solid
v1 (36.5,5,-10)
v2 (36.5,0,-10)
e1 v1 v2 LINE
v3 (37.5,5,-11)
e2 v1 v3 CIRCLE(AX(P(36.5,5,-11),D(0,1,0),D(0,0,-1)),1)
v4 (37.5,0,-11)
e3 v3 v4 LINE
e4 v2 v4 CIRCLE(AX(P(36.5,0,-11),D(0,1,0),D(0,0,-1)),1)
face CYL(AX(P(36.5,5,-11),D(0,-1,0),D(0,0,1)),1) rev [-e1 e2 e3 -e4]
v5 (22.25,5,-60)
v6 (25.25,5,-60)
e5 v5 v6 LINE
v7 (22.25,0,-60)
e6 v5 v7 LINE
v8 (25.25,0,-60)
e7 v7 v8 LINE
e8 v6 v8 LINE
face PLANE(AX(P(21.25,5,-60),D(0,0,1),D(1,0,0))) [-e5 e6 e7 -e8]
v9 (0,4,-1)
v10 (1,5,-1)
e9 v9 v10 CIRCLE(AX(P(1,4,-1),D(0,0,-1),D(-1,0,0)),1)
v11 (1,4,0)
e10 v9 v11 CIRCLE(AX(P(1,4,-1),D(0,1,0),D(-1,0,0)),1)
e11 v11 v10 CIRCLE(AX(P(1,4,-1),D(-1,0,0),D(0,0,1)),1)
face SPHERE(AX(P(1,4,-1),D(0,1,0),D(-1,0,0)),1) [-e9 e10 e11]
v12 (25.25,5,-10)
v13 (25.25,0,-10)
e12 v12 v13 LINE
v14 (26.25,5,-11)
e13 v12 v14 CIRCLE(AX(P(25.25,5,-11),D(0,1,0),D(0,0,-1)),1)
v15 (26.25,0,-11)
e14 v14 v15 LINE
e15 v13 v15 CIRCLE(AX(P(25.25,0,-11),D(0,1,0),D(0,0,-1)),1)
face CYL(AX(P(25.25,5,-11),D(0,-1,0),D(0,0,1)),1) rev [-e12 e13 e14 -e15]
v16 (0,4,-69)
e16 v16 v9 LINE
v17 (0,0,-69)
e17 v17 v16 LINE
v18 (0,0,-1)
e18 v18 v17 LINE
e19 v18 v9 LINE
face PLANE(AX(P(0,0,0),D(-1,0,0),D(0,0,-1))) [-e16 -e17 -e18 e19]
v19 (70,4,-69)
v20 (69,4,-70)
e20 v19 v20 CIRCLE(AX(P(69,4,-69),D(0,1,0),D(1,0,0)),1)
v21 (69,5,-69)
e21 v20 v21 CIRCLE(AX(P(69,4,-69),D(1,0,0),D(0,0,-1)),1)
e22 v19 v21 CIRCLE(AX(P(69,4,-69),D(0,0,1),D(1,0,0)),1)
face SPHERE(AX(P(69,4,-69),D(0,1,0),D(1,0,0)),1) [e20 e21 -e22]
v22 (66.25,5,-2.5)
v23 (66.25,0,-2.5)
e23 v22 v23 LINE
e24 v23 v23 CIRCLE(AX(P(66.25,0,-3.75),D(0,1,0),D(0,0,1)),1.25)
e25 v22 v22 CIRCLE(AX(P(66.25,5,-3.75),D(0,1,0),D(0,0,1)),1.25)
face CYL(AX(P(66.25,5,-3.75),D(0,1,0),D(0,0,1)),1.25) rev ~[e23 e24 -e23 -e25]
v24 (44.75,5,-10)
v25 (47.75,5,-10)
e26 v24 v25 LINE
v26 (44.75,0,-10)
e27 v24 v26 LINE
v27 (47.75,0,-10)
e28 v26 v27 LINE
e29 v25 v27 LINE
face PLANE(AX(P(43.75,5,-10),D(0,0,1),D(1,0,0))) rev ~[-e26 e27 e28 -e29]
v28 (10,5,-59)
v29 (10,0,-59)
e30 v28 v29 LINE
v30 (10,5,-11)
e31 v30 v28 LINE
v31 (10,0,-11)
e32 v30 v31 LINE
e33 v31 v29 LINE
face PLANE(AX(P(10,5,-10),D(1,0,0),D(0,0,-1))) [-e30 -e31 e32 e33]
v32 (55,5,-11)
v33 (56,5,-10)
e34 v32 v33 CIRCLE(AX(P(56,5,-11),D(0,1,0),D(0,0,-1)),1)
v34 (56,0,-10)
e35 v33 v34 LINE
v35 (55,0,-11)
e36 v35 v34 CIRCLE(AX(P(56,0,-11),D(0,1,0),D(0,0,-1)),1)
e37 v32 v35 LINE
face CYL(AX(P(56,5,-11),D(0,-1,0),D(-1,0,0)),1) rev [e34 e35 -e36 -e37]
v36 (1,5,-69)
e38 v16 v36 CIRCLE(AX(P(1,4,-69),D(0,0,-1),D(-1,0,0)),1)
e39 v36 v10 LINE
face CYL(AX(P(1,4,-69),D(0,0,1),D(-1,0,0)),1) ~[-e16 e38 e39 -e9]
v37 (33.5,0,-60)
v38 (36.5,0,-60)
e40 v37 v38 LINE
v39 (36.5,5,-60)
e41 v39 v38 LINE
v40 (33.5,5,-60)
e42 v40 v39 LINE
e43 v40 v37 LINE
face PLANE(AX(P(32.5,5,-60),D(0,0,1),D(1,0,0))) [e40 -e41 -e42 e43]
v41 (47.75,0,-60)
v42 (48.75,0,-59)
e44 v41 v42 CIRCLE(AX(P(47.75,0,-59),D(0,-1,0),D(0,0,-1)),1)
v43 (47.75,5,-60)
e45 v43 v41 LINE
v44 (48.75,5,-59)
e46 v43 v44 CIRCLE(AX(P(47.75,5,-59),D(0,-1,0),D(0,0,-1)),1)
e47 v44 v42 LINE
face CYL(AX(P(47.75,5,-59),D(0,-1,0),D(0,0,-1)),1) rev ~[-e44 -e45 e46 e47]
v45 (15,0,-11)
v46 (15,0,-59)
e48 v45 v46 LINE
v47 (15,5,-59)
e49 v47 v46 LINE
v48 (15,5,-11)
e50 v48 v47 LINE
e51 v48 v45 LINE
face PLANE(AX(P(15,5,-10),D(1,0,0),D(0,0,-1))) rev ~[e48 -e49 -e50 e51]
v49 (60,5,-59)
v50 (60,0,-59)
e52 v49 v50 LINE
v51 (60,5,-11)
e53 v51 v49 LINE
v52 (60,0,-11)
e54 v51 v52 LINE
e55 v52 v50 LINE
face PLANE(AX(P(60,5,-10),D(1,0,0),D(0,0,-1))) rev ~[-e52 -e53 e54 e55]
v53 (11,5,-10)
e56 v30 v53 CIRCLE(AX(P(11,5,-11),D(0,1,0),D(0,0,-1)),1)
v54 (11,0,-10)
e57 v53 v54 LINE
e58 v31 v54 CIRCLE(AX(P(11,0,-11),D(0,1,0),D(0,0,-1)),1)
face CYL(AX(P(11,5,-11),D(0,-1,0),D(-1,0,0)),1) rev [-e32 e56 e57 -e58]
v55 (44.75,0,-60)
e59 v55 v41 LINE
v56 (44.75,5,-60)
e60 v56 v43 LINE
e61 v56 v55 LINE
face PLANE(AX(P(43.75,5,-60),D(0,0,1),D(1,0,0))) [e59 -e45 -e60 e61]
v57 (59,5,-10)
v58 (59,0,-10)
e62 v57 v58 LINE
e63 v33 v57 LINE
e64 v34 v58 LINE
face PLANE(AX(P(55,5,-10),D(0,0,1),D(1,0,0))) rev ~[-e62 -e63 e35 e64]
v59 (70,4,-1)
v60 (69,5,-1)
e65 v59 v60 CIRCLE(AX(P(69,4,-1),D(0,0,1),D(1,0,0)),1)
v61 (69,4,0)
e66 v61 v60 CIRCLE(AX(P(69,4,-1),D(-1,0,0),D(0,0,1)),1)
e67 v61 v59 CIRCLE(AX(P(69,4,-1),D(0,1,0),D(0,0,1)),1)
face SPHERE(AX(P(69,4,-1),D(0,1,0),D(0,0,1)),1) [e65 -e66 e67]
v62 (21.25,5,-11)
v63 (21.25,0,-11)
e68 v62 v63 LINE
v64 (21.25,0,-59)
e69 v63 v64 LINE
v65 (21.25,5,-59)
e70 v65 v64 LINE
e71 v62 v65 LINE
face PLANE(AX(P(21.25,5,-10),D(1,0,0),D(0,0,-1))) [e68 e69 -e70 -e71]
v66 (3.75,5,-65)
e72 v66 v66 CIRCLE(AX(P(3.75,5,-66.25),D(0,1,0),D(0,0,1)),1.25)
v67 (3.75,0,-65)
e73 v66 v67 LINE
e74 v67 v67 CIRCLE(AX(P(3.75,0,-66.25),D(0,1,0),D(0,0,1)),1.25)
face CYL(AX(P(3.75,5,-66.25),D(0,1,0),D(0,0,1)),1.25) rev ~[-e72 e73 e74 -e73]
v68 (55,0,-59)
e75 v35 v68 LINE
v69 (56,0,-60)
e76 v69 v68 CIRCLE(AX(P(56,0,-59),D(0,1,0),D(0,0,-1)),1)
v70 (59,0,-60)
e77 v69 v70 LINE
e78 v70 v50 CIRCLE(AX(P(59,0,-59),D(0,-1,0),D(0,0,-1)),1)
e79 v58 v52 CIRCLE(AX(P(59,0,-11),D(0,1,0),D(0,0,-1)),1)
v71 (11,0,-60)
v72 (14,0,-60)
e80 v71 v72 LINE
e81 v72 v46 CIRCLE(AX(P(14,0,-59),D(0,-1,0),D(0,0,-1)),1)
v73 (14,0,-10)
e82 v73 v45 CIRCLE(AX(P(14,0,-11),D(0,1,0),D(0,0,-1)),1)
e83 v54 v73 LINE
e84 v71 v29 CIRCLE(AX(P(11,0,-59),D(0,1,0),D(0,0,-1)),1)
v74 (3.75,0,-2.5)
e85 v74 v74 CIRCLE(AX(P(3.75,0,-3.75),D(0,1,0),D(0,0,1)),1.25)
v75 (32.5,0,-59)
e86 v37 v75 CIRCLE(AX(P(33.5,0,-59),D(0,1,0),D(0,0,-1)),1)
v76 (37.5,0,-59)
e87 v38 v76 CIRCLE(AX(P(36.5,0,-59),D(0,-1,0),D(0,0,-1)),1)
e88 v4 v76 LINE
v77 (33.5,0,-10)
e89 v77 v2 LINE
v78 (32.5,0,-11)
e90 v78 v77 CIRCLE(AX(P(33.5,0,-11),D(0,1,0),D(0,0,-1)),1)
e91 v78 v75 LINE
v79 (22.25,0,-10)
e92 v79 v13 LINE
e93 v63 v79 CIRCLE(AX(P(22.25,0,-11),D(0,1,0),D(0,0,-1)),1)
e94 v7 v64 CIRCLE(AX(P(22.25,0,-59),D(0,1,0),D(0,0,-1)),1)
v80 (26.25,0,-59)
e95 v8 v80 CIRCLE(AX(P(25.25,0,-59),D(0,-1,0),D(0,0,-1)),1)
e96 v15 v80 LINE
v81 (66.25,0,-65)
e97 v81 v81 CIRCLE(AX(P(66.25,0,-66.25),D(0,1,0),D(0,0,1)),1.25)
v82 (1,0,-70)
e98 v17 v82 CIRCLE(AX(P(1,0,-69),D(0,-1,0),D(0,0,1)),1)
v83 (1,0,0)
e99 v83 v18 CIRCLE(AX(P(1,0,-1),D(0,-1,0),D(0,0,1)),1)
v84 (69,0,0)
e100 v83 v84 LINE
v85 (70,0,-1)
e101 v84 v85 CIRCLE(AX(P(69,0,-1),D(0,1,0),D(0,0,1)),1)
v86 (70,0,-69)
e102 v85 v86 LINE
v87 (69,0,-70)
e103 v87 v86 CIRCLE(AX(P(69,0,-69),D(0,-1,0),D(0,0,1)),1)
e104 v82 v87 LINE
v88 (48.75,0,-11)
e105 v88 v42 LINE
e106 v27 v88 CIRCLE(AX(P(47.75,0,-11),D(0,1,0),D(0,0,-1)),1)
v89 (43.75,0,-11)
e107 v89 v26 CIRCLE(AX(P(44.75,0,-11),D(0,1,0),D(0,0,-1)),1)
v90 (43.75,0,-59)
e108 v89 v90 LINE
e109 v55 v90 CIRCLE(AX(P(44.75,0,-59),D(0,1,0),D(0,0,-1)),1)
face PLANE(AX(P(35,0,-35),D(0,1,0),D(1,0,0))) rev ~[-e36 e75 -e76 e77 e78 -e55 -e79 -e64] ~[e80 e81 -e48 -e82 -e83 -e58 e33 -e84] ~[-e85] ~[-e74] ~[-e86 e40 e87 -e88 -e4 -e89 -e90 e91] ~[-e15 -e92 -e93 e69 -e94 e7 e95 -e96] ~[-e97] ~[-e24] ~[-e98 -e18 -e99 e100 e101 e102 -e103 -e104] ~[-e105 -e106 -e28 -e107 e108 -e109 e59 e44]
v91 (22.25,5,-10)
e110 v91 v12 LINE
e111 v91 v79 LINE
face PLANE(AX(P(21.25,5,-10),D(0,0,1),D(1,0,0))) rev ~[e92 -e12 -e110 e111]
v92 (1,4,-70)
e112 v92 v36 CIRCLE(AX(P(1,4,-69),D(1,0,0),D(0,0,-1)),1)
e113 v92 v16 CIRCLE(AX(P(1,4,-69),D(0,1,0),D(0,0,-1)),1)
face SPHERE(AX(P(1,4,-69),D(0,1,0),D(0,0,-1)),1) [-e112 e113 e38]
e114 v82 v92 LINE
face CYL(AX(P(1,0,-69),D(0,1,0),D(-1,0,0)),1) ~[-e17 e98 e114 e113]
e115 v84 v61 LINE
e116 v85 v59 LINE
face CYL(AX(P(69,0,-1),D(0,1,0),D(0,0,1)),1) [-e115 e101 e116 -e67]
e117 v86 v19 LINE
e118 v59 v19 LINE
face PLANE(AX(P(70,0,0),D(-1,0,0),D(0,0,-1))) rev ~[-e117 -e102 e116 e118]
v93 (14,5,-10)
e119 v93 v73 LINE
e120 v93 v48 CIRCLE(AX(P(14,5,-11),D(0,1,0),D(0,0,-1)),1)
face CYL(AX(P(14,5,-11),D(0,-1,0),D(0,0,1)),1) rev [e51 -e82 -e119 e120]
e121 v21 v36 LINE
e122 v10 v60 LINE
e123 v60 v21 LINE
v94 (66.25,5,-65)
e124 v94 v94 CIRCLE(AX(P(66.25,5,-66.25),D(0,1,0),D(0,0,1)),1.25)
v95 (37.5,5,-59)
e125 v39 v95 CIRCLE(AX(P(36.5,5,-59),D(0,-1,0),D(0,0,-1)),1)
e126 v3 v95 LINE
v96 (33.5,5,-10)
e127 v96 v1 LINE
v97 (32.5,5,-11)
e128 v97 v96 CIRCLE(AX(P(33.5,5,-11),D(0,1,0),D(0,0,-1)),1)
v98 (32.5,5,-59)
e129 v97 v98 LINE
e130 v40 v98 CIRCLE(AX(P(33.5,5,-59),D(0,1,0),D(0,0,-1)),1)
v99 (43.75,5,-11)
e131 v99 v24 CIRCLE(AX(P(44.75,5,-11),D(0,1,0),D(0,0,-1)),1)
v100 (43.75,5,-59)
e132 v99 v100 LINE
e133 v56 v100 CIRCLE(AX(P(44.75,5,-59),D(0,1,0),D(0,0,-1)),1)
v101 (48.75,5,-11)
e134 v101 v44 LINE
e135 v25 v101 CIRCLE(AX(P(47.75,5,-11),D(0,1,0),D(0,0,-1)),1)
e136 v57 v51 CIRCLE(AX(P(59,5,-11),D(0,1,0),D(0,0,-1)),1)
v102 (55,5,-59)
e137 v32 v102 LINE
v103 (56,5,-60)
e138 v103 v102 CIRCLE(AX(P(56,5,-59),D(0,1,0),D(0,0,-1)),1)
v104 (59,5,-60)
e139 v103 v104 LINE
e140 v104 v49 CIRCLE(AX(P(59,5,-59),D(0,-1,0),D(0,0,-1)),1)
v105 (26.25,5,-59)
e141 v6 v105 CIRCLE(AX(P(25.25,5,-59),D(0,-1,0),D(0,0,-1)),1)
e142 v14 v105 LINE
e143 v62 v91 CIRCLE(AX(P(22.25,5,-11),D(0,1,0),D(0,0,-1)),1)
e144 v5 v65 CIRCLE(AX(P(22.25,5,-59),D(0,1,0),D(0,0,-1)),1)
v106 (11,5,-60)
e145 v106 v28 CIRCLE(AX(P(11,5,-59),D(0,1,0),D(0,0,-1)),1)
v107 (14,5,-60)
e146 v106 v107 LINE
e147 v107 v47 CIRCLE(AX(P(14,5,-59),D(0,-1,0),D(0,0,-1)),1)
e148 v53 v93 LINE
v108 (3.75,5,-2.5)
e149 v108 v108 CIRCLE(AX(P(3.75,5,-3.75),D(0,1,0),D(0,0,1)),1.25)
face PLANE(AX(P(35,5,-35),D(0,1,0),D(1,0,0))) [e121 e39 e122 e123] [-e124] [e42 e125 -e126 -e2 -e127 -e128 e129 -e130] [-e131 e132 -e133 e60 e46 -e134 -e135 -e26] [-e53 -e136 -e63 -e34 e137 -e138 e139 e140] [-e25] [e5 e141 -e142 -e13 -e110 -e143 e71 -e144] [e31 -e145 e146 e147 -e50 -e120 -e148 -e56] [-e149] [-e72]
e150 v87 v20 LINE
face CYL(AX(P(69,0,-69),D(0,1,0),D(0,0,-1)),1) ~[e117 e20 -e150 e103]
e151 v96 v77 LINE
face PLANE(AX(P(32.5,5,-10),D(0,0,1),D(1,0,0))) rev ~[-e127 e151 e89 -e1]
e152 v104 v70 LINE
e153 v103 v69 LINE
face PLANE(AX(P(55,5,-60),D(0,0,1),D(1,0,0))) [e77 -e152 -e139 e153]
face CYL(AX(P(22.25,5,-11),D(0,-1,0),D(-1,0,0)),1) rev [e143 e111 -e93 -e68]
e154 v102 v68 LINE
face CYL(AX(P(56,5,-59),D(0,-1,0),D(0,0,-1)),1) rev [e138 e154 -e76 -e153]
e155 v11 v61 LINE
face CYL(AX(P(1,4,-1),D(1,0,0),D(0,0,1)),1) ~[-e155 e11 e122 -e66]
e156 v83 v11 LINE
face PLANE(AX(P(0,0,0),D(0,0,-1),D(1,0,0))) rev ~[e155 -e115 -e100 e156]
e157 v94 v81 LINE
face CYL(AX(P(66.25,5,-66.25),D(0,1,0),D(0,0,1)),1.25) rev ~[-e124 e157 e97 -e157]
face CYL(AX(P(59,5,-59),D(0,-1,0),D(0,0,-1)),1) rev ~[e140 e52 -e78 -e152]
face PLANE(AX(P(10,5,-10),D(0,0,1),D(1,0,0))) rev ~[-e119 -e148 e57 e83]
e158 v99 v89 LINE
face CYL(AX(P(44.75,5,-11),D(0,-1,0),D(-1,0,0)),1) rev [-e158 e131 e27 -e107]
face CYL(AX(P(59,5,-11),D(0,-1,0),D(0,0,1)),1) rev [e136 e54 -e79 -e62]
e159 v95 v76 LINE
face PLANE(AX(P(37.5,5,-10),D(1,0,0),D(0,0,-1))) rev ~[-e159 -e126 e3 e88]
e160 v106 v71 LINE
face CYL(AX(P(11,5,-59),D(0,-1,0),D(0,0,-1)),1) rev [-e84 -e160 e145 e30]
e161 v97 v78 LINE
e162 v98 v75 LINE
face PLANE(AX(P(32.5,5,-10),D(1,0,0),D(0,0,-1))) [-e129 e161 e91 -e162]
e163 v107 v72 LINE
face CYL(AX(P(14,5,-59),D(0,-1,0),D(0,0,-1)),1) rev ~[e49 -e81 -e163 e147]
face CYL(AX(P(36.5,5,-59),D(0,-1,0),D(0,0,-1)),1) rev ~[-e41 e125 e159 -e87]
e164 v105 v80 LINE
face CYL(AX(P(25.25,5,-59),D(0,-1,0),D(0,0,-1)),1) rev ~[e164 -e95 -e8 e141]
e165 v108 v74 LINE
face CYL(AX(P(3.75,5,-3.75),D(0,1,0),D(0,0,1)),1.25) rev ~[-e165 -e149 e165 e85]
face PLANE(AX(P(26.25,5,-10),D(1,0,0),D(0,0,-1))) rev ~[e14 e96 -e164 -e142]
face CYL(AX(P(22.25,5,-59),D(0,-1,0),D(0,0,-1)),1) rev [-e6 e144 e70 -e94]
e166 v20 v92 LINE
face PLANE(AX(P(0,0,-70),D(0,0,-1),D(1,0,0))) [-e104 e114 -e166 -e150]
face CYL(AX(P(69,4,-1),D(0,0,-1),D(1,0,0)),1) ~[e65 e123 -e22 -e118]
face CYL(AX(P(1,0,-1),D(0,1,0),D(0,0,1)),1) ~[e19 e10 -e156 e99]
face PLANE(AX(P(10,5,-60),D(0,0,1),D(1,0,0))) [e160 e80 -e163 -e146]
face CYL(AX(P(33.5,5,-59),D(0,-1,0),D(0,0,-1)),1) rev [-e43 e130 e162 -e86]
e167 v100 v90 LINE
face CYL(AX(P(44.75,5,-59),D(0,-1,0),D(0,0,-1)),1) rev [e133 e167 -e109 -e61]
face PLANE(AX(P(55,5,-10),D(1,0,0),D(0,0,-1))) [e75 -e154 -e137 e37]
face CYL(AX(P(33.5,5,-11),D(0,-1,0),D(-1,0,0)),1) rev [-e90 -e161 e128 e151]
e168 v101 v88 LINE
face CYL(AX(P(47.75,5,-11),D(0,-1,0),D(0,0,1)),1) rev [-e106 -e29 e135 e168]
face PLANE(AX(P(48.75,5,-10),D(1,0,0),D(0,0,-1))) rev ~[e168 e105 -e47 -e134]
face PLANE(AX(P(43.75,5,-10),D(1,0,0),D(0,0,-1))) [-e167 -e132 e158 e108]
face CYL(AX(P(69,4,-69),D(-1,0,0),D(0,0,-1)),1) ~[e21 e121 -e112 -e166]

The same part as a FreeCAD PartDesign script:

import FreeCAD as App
import Part
import Sketcher
from FreeCAD import Vector
Q = App.Units.Quantity


def edges_at(feature, points):
    """Names of the edges that pass closest to the given points."""
    edges = feature.Shape.Edges
    near = lambda p: min(range(len(edges)), key=lambda i: edges[i].distToShape(Part.Vertex(*p))[0])
    return sorted({f"Edge{near(p) + 1}" for p in points})

doc = App.newDocument("Part")
body = doc.addObject("PartDesign::Body", "Body")

# Sketch on XZ plane
sketch1 = body.newObject("Sketcher::SketchObject", "Sketch")
sketch1.AttachmentSupport = (doc.getObject("XZ_Plane"), [""])
sketch1.MapMode = "FlatFace"
sketch1.addGeometry(Part.LineSegment(Vector(0, -70, 0), Vector(0, 0, 0)), False)
sketch1.addGeometry(Part.LineSegment(Vector(0, 0, 0), Vector(70, 0, 0)), False)
sketch1.addGeometry(Part.LineSegment(Vector(70, 0, 0), Vector(70, -70, 0)), False)
sketch1.addGeometry(Part.LineSegment(Vector(70, -70, 0), Vector(0, -70, 0)), False)
sketch1.addConstraint(Sketcher.Constraint("Coincident", 0, 2, 1, 1))
sketch1.addConstraint(Sketcher.Constraint("Coincident", 1, 2, 2, 1))
sketch1.addConstraint(Sketcher.Constraint("Coincident", 2, 2, 3, 1))
sketch1.addConstraint(Sketcher.Constraint("Coincident", 3, 2, 0, 1))
sketch1.addConstraint(Sketcher.Constraint("Vertical", 0))
sketch1.addConstraint(Sketcher.Constraint("Horizontal", 1))
sketch1.addConstraint(Sketcher.Constraint("Vertical", 2))
sketch1.addConstraint(Sketcher.Constraint("Horizontal", 3))
sketch1.addConstraint(Sketcher.Constraint("Coincident", 0, 2, -1, 1))
sketch1.addConstraint(Sketcher.Constraint("Equal", 3, 0))
sketch1.addConstraint(Sketcher.Constraint("DistanceX", 1, 1, 1, 2, Q("70 mm")))
pad1 = body.newObject("PartDesign::Pad", "Pad")
pad1.Profile = sketch1
pad1.Length = 5
pad1.Reversed = True

# Sketch on XZ plane
sketch2 = body.newObject("Sketcher::SketchObject", "Sketch001")
sketch2.AttachmentSupport = (doc.getObject("XZ_Plane"), [""])
sketch2.MapMode = "FlatFace"
sketch2.AttachmentOffset = App.Placement(Vector(0, 0, -5), App.Rotation())
sketch2.addGeometry(Part.Circle(Vector(3.8, -3.8, 0), Vector(0, 0, 1), 1.2), False)
sketch2.addConstraint(Sketcher.Constraint("Diameter", 0, Q("2.5 mm")))
sketch2.addConstraint(Sketcher.Constraint("DistanceX", -1, 1, 0, 3, Q("3.75 mm")))
sketch2.addConstraint(Sketcher.Constraint("DistanceY", 0, 3, -1, 1, Q("3.75 mm")))
pocket1 = body.newObject("PartDesign::Pocket", "Pocket")
pocket1.Profile = sketch2
pocket1.Type = "ThroughAll"
pocket1.Reversed = True
doc.recompute()

linearpattern = body.newObject("PartDesign::LinearPattern", "LinearPattern")
linearpattern.Originals = [pocket1]
linearpattern.Direction = (doc.getObject("X_Axis"), [""])
linearpattern.Mode = "offset"
linearpattern.Offset = 62.5
linearpattern.Occurrences = 2
body.Tip = linearpattern
doc.recompute()

linearpattern2 = body.newObject("PartDesign::LinearPattern", "LinearPattern001")
linearpattern2.Originals = [pocket1]
linearpattern2.Direction = (doc.getObject("Z_Axis"), [""])
linearpattern2.Mode = "offset"
linearpattern2.Offset = 62.5
linearpattern2.Occurrences = 2
linearpattern2.Reversed = True
body.Tip = linearpattern2

# Sketch on XZ plane
sketch3 = body.newObject("Sketcher::SketchObject", "Sketch002")
sketch3.AttachmentSupport = (doc.getObject("XZ_Plane"), [""])
sketch3.MapMode = "FlatFace"
sketch3.AttachmentOffset = App.Placement(Vector(0, 0, -5), App.Rotation())
sketch3.addGeometry(Part.Circle(Vector(66.2, -66.2, 0), Vector(0, 0, 1), 1.2), False)
sketch3.addConstraint(Sketcher.Constraint("Diameter", 0, Q("2.5 mm")))
sketch3.addConstraint(Sketcher.Constraint("DistanceX", -1, 1, 0, 3, Q("66.25 mm")))
sketch3.addConstraint(Sketcher.Constraint("DistanceY", 0, 3, -1, 1, Q("66.25 mm")))
pocket2 = body.newObject("PartDesign::Pocket", "Pocket001")
pocket2.Profile = sketch3
pocket2.Type = "ThroughAll"
pocket2.Reversed = True

# Sketch on XZ plane
sketch4 = body.newObject("Sketcher::SketchObject", "Sketch003")
sketch4.AttachmentSupport = (doc.getObject("XZ_Plane"), [""])
sketch4.MapMode = "FlatFace"
sketch4.AttachmentOffset = App.Placement(Vector(0, 0, -5), App.Rotation())
sketch4.addGeometry(Part.LineSegment(Vector(10, -60, 0), Vector(10, -10, 0)), False)
sketch4.addGeometry(Part.LineSegment(Vector(10, -10, 0), Vector(15, -10, 0)), False)
sketch4.addGeometry(Part.LineSegment(Vector(15, -10, 0), Vector(15, -60, 0)), False)
sketch4.addGeometry(Part.LineSegment(Vector(15, -60, 0), Vector(10, -60, 0)), False)
sketch4.addConstraint(Sketcher.Constraint("Coincident", 0, 2, 1, 1))
sketch4.addConstraint(Sketcher.Constraint("Coincident", 1, 2, 2, 1))
sketch4.addConstraint(Sketcher.Constraint("Coincident", 2, 2, 3, 1))
sketch4.addConstraint(Sketcher.Constraint("Coincident", 3, 2, 0, 1))
sketch4.addConstraint(Sketcher.Constraint("Vertical", 0))
sketch4.addConstraint(Sketcher.Constraint("Horizontal", 1))
sketch4.addConstraint(Sketcher.Constraint("Vertical", 2))
sketch4.addConstraint(Sketcher.Constraint("Horizontal", 3))
sketch4.addConstraint(Sketcher.Constraint("DistanceX", 1, 1, 1, 2, Q("5 mm")))
sketch4.addConstraint(Sketcher.Constraint("DistanceY", 0, 1, 0, 2, Q("50 mm")))
sketch4.addConstraint(Sketcher.Constraint("DistanceX", -1, 1, 0, 2, Q("10 mm")))
sketch4.addConstraint(Sketcher.Constraint("DistanceY", 0, 2, -1, 1, Q("10 mm")))
pocket3 = body.newObject("PartDesign::Pocket", "Pocket002")
pocket3.Profile = sketch4
pocket3.Type = "ThroughAll"
pocket3.Reversed = True
doc.recompute()

fillet = body.newObject("PartDesign::Fillet", "Fillet")
fillet.Base = (pocket3, edges_at(pocket3, [(10, 2.5, -60)]))
fillet.Radius = 1
doc.recompute()

fillet2 = body.newObject("PartDesign::Fillet", "Fillet001")
fillet2.Base = (fillet, edges_at(fillet, [(15, 2.5, -60)]))
fillet2.Radius = 1
doc.recompute()

fillet3 = body.newObject("PartDesign::Fillet", "Fillet002")
fillet3.Base = (fillet2, edges_at(fillet2, [(10, 2.5, -10)]))
fillet3.Radius = 1
doc.recompute()

fillet4 = body.newObject("PartDesign::Fillet", "Fillet003")
fillet4.Base = (fillet3, edges_at(fillet3, [(15, 2.5, -10)]))
fillet4.Radius = 1
doc.recompute()

linearpattern3 = body.newObject("PartDesign::LinearPattern", "LinearPattern002")
linearpattern3.Originals = [pocket3]
linearpattern3.Direction = (doc.getObject("X_Axis"), [""])
linearpattern3.Mode = "offset"
linearpattern3.Offset = 11.25
linearpattern3.Occurrences = 5
body.Tip = linearpattern3
doc.recompute()

fillet5 = body.newObject("PartDesign::Fillet", "Fillet004")
fillet5.Base = (linearpattern3, edges_at(linearpattern3, [
    (21.25, 2.5, -60),
    (32.5, 2.5, -60),
    (43.75, 2.5, -60),
    (55, 2.5, -60),
]))
fillet5.Radius = 1
doc.recompute()

fillet6 = body.newObject("PartDesign::Fillet", "Fillet005")
fillet6.Base = (fillet5, edges_at(fillet5, [
    (26.25, 2.5, -60),
    (37.5, 2.5, -60),
    (48.75, 2.5, -60),
    (60, 2.5, -60),
]))
fillet6.Radius = 1
doc.recompute()

fillet7 = body.newObject("PartDesign::Fillet", "Fillet006")
fillet7.Base = (fillet6, edges_at(fillet6, [
    (21.25, 2.5, -10),
    (32.5, 2.5, -10),
    (43.75, 2.5, -10),
    (55, 2.5, -10),
]))
fillet7.Radius = 1
doc.recompute()

fillet8 = body.newObject("PartDesign::Fillet", "Fillet007")
fillet8.Base = (fillet7, edges_at(fillet7, [
    (26.25, 2.5, -10),
    (37.5, 2.5, -10),
    (48.75, 2.5, -10),
    (60, 2.5, -10),
]))
fillet8.Radius = 1
doc.recompute()

fillet9 = body.newObject("PartDesign::Fillet", "Fillet008")
fillet9.Base = (fillet8, edges_at(fillet8, [(70, 2.5, 0)]))
fillet9.Radius = 1
doc.recompute()

fillet10 = body.newObject("PartDesign::Fillet", "Fillet009")
fillet10.Base = (fillet9, edges_at(fillet9, [(0, 2.5, 0)]))
fillet10.Radius = 1
doc.recompute()

fillet11 = body.newObject("PartDesign::Fillet", "Fillet010")
fillet11.Base = (fillet10, edges_at(fillet10, [(0, 2.5, -70)]))
fillet11.Radius = 1
doc.recompute()

fillet12 = body.newObject("PartDesign::Fillet", "Fillet011")
fillet12.Base = (fillet11, edges_at(fillet11, [(70, 2.5, -70)]))
fillet12.Radius = 1
doc.recompute()

fillet13 = body.newObject("PartDesign::Fillet", "Fillet012")
fillet13.Base = (fillet12, edges_at(fillet12, [
    (70, 5, -35),
    (69.707, 5, -0.293),
    (35, 5, 0),
    (0.293, 5, -0.293),
    (0, 5, -35),
    (0.293, 5, -69.707),
    (35, 5, -70),
    (69.707, 5, -69.707),
]))
fillet13.Radius = 1

doc.recompute()
